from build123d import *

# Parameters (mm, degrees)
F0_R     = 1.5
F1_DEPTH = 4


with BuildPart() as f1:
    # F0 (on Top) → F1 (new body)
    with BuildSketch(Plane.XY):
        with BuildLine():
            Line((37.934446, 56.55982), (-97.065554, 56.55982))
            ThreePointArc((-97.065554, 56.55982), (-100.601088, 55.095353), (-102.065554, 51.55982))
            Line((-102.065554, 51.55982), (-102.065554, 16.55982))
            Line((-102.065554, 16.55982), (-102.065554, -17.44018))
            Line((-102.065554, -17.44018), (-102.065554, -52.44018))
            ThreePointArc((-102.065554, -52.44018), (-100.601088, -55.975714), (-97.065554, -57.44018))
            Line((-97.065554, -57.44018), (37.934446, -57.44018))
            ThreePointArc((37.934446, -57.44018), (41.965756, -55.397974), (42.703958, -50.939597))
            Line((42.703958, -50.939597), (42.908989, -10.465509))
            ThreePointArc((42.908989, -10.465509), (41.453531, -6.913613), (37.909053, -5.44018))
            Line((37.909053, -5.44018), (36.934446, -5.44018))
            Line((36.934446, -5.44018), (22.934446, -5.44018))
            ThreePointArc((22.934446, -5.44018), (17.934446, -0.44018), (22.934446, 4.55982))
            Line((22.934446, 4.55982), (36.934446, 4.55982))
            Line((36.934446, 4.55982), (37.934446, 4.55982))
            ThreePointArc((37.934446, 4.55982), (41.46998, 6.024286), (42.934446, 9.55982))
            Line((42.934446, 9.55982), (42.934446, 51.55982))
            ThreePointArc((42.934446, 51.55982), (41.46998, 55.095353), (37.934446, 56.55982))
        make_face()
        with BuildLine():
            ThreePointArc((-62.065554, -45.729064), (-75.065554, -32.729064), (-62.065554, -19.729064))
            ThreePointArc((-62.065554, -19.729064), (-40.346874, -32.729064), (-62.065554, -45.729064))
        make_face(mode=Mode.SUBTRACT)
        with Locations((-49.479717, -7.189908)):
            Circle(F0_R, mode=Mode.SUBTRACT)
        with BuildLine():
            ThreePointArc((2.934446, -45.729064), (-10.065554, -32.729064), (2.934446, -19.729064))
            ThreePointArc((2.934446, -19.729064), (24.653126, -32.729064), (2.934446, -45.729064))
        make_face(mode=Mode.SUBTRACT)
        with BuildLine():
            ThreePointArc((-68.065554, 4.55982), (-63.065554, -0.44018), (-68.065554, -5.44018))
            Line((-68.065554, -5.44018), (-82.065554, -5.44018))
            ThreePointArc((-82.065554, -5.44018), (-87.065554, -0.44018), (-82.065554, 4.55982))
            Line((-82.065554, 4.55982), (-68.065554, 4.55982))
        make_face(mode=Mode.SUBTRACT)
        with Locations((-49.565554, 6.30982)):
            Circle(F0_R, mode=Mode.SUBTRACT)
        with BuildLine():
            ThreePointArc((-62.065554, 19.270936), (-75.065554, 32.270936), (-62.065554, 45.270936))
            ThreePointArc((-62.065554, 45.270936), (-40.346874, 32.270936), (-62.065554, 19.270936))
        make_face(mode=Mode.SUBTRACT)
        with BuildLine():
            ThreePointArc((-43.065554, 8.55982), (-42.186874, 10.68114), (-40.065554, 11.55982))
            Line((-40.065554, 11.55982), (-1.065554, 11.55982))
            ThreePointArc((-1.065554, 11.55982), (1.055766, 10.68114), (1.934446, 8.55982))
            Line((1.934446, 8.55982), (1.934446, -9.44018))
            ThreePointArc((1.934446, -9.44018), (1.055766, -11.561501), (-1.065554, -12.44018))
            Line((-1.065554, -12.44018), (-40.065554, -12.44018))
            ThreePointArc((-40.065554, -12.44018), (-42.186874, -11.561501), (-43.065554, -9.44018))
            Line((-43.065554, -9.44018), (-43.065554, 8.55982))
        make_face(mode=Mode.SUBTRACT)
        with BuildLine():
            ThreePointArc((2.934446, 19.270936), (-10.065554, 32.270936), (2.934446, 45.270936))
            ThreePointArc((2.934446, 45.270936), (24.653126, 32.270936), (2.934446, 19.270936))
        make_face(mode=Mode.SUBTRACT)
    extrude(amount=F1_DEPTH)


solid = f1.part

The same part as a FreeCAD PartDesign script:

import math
import FreeCAD as App
import Part
import Sketcher
from FreeCAD import Vector

doc = App.newDocument("Part")
body = doc.addObject("PartDesign::Body", "Body")

# Sketch on XY plane
sketch1 = doc.addObject("Sketcher::SketchObject", "Sketch")
body.addObject(sketch1)
sketch1.AttachmentSupport = (doc.XY_Plane, [""])
sketch1.MapMode = "FlatFace"
sketch1.addGeometry([
    Part.LineSegment(Vector(37.934446, 56.55982, 0), Vector(-97.065554, 56.55982, 0)),  # 0
    Part.ArcOfCircle(Part.Circle(Vector(-97.065553, 51.559819, 0), Vector(0, 0, 1), 5.000001), math.radians(90.000016), math.radians(179.999984)),  # 1
    Part.LineSegment(Vector(-102.065554, 51.55982, 0), Vector(-102.065554, -52.44018, 0)),  # 2
    Part.ArcOfCircle(Part.Circle(Vector(-97.065554, -52.44018, 0), Vector(0, 0, 1), 5), math.radians(179.999996), math.radians(270.000004)),  # 3
    Part.LineSegment(Vector(-97.065554, -57.44018, 0), Vector(37.934446, -57.44018, 0)),  # 4
    Part.ArcOfCircle(Part.Circle(Vector(37.934447, -52.440182, 0), Vector(0, 0, 1), 4.999998), math.radians(-90.000017), math.radians(17.464631)),  # 5
    Part.LineSegment(Vector(42.703958, -50.939597, 0), Vector(42.908989, -10.465509, 0)),  # 6
    Part.ArcOfCircle(Part.Circle(Vector(37.909053, -10.44018, 0), Vector(0, 0, 1), 5), math.radians(-0.290245), math.radians(89.999996)),  # 7
    Part.LineSegment(Vector(37.909053, -5.44018, 0), Vector(22.934446, -5.44018, 0)),  # 8
    Part.ArcOfCircle(Part.Circle(Vector(22.934446, -0.44018, 0), Vector(0, 0, 1), 5), math.radians(90), math.radians(270)),  # 9
    Part.LineSegment(Vector(22.934446, 4.55982, 0), Vector(37.934446, 4.55982, 0)),  # 10
    Part.ArcOfCircle(Part.Circle(Vector(37.934446, 9.55982, 0), Vector(0, 0, 1), 5), math.radians(-90.000004), math.radians(0.000004)),  # 11
    Part.LineSegment(Vector(42.934446, 9.55982, 0), Vector(42.934446, 51.55982, 0)),  # 12
    Part.ArcOfCircle(Part.Circle(Vector(37.934445, 51.559819, 0), Vector(0, 0, 1), 5.000001), math.radians(0.000016), math.radians(89.999984)),  # 13
    Part.ArcOfCircle(Part.Circle(Vector(-55.096874, -32.729064, 0), Vector(0, 0, 1), 14.75), math.radians(-118.193636), math.radians(118.193636)),  # 14
    Part.ArcOfCircle(Part.Circle(Vector(-62.065554, -32.729064, 0), Vector(0, 0, 1), 13), math.radians(90), math.radians(270)),  # 15
    Part.LineSegment(Vector(-82.065554, 4.55982, 0), Vector(-68.065554, 4.55982, 0)),  # 16
    Part.ArcOfCircle(Part.Circle(Vector(-68.065554, -0.44018, 0), Vector(0, 0, 1), 5), math.radians(-90), math.radians(90)),  # 17
    Part.LineSegment(Vector(-68.065554, -5.44018, 0), Vector(-82.065554, -5.44018, 0)),  # 18
    Part.ArcOfCircle(Part.Circle(Vector(-82.065554, -0.44018, 0), Vector(0, 0, 1), 5), math.radians(90), math.radians(270)),  # 19
    Part.Circle(Vector(-49.479717, -7.189908, 0), Vector(0, 0, 1), 1.5),  # 20
    Part.ArcOfCircle(Part.Circle(Vector(9.903126, -32.729064, 0), Vector(0, 0, 1), 14.75), math.radians(-118.193636), math.radians(118.193636)),  # 21
    Part.ArcOfCircle(Part.Circle(Vector(2.934446, -32.729064, 0), Vector(0, 0, 1), 13), math.radians(90), math.radians(270)),  # 22
    Part.LineSegment(Vector(-43.065554, -9.44018, 0), Vector(-43.065554, 8.55982, 0)),  # 23
    Part.ArcOfCircle(Part.Circle(Vector(-40.065553, 8.559819, 0), Vector(0, 0, 1), 3.000001), math.radians(90.000022), math.radians(179.999978)),  # 24
    Part.LineSegment(Vector(-40.065554, 11.55982, 0), Vector(-1.065554, 11.55982, 0)),  # 25
    Part.ArcOfCircle(Part.Circle(Vector(-1.065555, 8.559819, 0), Vector(0, 0, 1), 3.000001), math.radians(0.000022), math.radians(89.999978)),  # 26
    Part.LineSegment(Vector(1.934446, 8.55982, 0), Vector(1.934446, -9.44018, 0)),  # 27
    Part.ArcOfCircle(Part.Circle(Vector(-1.065553, -9.440181, 0), Vector(0, 0, 1), 2.999999), math.radians(-90.00001), math.radians(0.00001)),  # 28
    Part.LineSegment(Vector(-1.065554, -12.44018, 0), Vector(-40.065554, -12.44018, 0)),  # 29
    Part.ArcOfCircle(Part.Circle(Vector(-40.065555, -9.440181, 0), Vector(0, 0, 1), 2.999999), math.radians(179.99999), math.radians(270.00001)),  # 30
    Part.Circle(Vector(-49.565554, 6.30982, 0), Vector(0, 0, 1), 1.5),  # 31
    Part.ArcOfCircle(Part.Circle(Vector(-55.096874, 32.270936, 0), Vector(0, 0, 1), 14.75), math.radians(-118.193636), math.radians(118.193636)),  # 32
    Part.ArcOfCircle(Part.Circle(Vector(-62.065554, 32.270936, 0), Vector(0, 0, 1), 13), math.radians(90), math.radians(270)),  # 33
    Part.ArcOfCircle(Part.Circle(Vector(9.903126, 32.270936, 0), Vector(0, 0, 1), 14.75), math.radians(-118.193636), math.radians(118.193636)),  # 34
    Part.ArcOfCircle(Part.Circle(Vector(2.934446, 32.270936, 0), Vector(0, 0, 1), 13), math.radians(90), math.radians(270)),  # 35
], False)
sketch1.addConstraint([
    Sketcher.Constraint("Coincident", 0, 2, 1, 1),
    Sketcher.Constraint("Coincident", 1, 2, 2, 1),
    Sketcher.Constraint("Coincident", 2, 2, 3, 1),
    Sketcher.Constraint("Coincident", 3, 2, 4, 1),
    Sketcher.Constraint("Coincident", 4, 2, 5, 1),
    Sketcher.Constraint("Coincident", 5, 2, 6, 1),
    Sketcher.Constraint("Coincident", 6, 2, 7, 1),
    Sketcher.Constraint("Coincident", 7, 2, 8, 1),
    Sketcher.Constraint("Coincident", 8, 2, 9, 2),
    Sketcher.Constraint("Coincident", 9, 1, 10, 1),
    Sketcher.Constraint("Coincident", 10, 2, 11, 1),
    Sketcher.Constraint("Coincident", 11, 2, 12, 1),
    Sketcher.Constraint("Coincident", 12, 2, 13, 1),
    Sketcher.Constraint("Coincident", 13, 2, 0, 1),
    Sketcher.Constraint("Coincident", 14, 1, 15, 2),
    Sketcher.Constraint("Coincident", 15, 1, 14, 2),
    Sketcher.Constraint("Coincident", 16, 2, 17, 2),
    Sketcher.Constraint("Coincident", 17, 1, 18, 1),
    Sketcher.Constraint("Coincident", 18, 2, 19, 2),
    Sketcher.Constraint("Coincident", 19, 1, 16, 1),
    Sketcher.Constraint("Coincident", 21, 1, 22, 2),
    Sketcher.Constraint("Coincident", 22, 1, 21, 2),
    Sketcher.Constraint("Coincident", 23, 2, 24, 2),
    Sketcher.Constraint("Coincident", 24, 1, 25, 1),
    Sketcher.Constraint("Coincident", 25, 2, 26, 2),
    Sketcher.Constraint("Coincident", 26, 1, 27, 1),
    Sketcher.Constraint("Coincident", 27, 2, 28, 2),
    Sketcher.Constraint("Coincident", 28, 1, 29, 1),
    Sketcher.Constraint("Coincident", 29, 2, 30, 2),
    Sketcher.Constraint("Coincident", 30, 1, 23, 1),
    Sketcher.Constraint("Coincident", 32, 1, 33, 2),
    Sketcher.Constraint("Coincident", 33, 1, 32, 2),
    Sketcher.Constraint("Coincident", 34, 1, 35, 2),
    Sketcher.Constraint("Coincident", 35, 1, 34, 2),
    Sketcher.Constraint("Horizontal", 0),
    Sketcher.Constraint("Vertical", 2),
    Sketcher.Constraint("Horizontal", 4),
    Sketcher.Constraint("Horizontal", 8),
    Sketcher.Constraint("Horizontal", 10),
    Sketcher.Constraint("Vertical", 12),
    Sketcher.Constraint("Horizontal", 16),
    Sketcher.Constraint("Horizontal", 18),
    Sketcher.Constraint("Vertical", 23),
    Sketcher.Constraint("Horizontal", 25),
    Sketcher.Constraint("Vertical", 27),
    Sketcher.Constraint("Horizontal", 29),
    Sketcher.Constraint("Diameter", 20, 3.0),
    Sketcher.Constraint("Diameter", 31, 3.0),
    Sketcher.Constraint("Radius", 1, 5.000001),
    Sketcher.Constraint("Radius", 3, 5.0),
    Sketcher.Constraint("Radius", 5, 4.999998),
    Sketcher.Constraint("Radius", 7, 5.0),
    Sketcher.Constraint("Radius", 9, 5.0),
    Sketcher.Constraint("Radius", 11, 5.0),
    Sketcher.Constraint("Radius", 13, 5.000001),
    Sketcher.Constraint("Radius", 15, 13.0),
    Sketcher.Constraint("Radius", 17, 5.0),
    Sketcher.Constraint("Radius", 22, 13.0),
    Sketcher.Constraint("Radius", 24, 3.000001),
    Sketcher.Constraint("Radius", 26, 3.000001),
    Sketcher.Constraint("Radius", 28, 2.999999),
    Sketcher.Constraint("Radius", 30, 2.999999),
    Sketcher.Constraint("Radius", 33, 13.0),
    Sketcher.Constraint("Radius", 35, 13.0),
    Sketcher.Constraint("DistanceX", 0, 2, 0, 1, 135.0),
    Sketcher.Constraint("DistanceX", 4, 1, 4, 2, 135.0),
    Sketcher.Constraint("DistanceX", 10, 1, 10, 2, 15.0),
    Sketcher.Constraint("DistanceX", 16, 1, 16, 2, 14.0),
    Sketcher.Constraint("DistanceX", 18, 2, 18, 1, 14.0),
    Sketcher.Constraint("DistanceX", 25, 1, 25, 2, 39.0),
    Sketcher.Constraint("DistanceX", 29, 2, 29, 1, 39.0),
    Sketcher.Constraint("DistanceY", 2, 2, 2, 1, 104.0),
    Sketcher.Constraint("DistanceY", 12, 1, 12, 2, 42.0),
    Sketcher.Constraint("DistanceY", 23, 1, 23, 2, 18.0),
    Sketcher.Constraint("DistanceY", 27, 2, 27, 1, 18.0),
    Sketcher.Constraint("Radius", 14, 14.75),
    Sketcher.Constraint("Radius", 21, 14.75),
    Sketcher.Constraint("Radius", 32, 14.75),
    Sketcher.Constraint("Radius", 34, 14.75),
    Sketcher.Constraint("DistanceY", 3, 3, 1, 3, 103.999999),
    Sketcher.Constraint("DistanceX", 3, 3, 5, 3, 135.000002),
    Sketcher.Constraint("DistanceY", 5, 3, 7, 3, 42.000001),
    Sketcher.Constraint("DistanceX", 9, 3, 5, 3, 15.000001),
    Sketcher.Constraint("DistanceX", 9, 3, 11, 3, 15.0),
    Sketcher.Constraint("DistanceX", 3, 3, 15, 3, 35.0),
    Sketcher.Constraint("DistanceX", 17, 3, 15, 3, 6.0),
    Sketcher.Constraint("DistanceY", 17, 3, 1, 3, 51.999999),
    Sketcher.Constraint("DistanceX", 19, 3, 17, 3, 14.0),
    Sketcher.Constraint("DistanceX", 22, 3, 9, 3, 20.0),
    Sketcher.Constraint("DistanceX", 17, 3, 24, 3, 28.000001),
    Sketcher.Constraint("DistanceY", 17, 3, 24, 3, 8.999999),
    Sketcher.Constraint("DistanceX", 26, 3, 9, 3, 24.000001),
    Sketcher.Constraint("DistanceY", 28, 3, 26, 3, 17.999999),
    Sketcher.Constraint("DistanceX", 33, 3, 24, 3, 22.000001),
    Sketcher.Constraint("DistanceX", 26, 3, 35, 3, 4.000001),
    Sketcher.Constraint("DistanceX", 0, 2, 33, 3, 35.0),
    Sketcher.Constraint("DistanceY", 1, 2, 0, 2, 5.0),
    Sketcher.Constraint("DistanceX", 2, 2, 3, 2, 5.0),
    Sketcher.Constraint("DistanceX", 8, 2, 11, 3, 15.0),
    Sketcher.Constraint("DistanceX", 9, 1, 11, 3, 15.0),
    Sketcher.Constraint("DistanceY", 10, 2, 11, 2, 5.0),
    Sketcher.Constraint("DistanceY", 14, 1, 14, 3, 13.0),
    Sketcher.Constraint("DistanceX", 3, 3, 14, 1, 35.0),
    Sketcher.Constraint("DistanceX", 19, 3, 16, 2, 14.0),
    Sketcher.Constraint("DistanceX", 19, 3, 17, 1, 14.0),
    Sketcher.Constraint("DistanceY", 21, 1, 21, 3, 13.0),
    Sketcher.Constraint("DistanceX", 21, 1, 5, 3, 35.000001),
    Sketcher.Constraint("DistanceY", 30, 3, 23, 2, 18.000001),
    Sketcher.Constraint("DistanceX", 23, 2, 24, 1, 3.0),
    Sketcher.Constraint("DistanceY", 26, 1, 25, 2, 3.0),
    Sketcher.Constraint("DistanceX", 28, 1, 27, 2, 3.0),
    Sketcher.Constraint("DistanceY", 32, 1, 32, 3, 13.0),
    Sketcher.Constraint("DistanceX", 16, 2, 32, 1, 6.0),
    Sketcher.Constraint("DistanceX", 25, 2, 34, 1, 4.0),
    Sketcher.Constraint("DistanceY", 34, 1, 34, 3, 13.0),
    Sketcher.Constraint("DistanceX", 31, 3, 24, 3, 9.500001),
    Sketcher.Constraint("DistanceY", 31, 3, 24, 3, 2.249999),
    Sketcher.Constraint("DistanceX", 8, 2, 8, 1, 14.974607),
    Sketcher.Constraint("DistanceY", -1, 1, 1, 3, 51.559819),
    Sketcher.Constraint("DistanceX", -1, 1, 6, 2, 42.908989),
    Sketcher.Constraint("DistanceY", 6, 2, -1, 1, 10.465509),
    Sketcher.Constraint("DistanceX", 7, 3, 13, 3, 0.025392),
    Sketcher.Constraint("DistanceY", 20, 3, 17, 3, 6.749728),
    Sketcher.Constraint("DistanceX", 5, 3, 5, 2, 4.769511),
    Sketcher.Constraint("DistanceY", 14, 3, -1, 1, 32.729064),
    Sketcher.Constraint("DistanceX", 20, 3, -1, 1, 49.479717),
    Sketcher.Constraint("DistanceY", 21, 3, -1, 1, 32.729064),
    Sketcher.Constraint("DistanceY", -1, 1, 32, 3, 32.270936),
    Sketcher.Constraint("DistanceY", -1, 1, 34, 3, 32.270936),
])
pad1 = doc.addObject("PartDesign::Pad", "Pad")
body.addObject(pad1)
pad1.Profile = sketch1
pad1.Length = 4

doc.recompute()
